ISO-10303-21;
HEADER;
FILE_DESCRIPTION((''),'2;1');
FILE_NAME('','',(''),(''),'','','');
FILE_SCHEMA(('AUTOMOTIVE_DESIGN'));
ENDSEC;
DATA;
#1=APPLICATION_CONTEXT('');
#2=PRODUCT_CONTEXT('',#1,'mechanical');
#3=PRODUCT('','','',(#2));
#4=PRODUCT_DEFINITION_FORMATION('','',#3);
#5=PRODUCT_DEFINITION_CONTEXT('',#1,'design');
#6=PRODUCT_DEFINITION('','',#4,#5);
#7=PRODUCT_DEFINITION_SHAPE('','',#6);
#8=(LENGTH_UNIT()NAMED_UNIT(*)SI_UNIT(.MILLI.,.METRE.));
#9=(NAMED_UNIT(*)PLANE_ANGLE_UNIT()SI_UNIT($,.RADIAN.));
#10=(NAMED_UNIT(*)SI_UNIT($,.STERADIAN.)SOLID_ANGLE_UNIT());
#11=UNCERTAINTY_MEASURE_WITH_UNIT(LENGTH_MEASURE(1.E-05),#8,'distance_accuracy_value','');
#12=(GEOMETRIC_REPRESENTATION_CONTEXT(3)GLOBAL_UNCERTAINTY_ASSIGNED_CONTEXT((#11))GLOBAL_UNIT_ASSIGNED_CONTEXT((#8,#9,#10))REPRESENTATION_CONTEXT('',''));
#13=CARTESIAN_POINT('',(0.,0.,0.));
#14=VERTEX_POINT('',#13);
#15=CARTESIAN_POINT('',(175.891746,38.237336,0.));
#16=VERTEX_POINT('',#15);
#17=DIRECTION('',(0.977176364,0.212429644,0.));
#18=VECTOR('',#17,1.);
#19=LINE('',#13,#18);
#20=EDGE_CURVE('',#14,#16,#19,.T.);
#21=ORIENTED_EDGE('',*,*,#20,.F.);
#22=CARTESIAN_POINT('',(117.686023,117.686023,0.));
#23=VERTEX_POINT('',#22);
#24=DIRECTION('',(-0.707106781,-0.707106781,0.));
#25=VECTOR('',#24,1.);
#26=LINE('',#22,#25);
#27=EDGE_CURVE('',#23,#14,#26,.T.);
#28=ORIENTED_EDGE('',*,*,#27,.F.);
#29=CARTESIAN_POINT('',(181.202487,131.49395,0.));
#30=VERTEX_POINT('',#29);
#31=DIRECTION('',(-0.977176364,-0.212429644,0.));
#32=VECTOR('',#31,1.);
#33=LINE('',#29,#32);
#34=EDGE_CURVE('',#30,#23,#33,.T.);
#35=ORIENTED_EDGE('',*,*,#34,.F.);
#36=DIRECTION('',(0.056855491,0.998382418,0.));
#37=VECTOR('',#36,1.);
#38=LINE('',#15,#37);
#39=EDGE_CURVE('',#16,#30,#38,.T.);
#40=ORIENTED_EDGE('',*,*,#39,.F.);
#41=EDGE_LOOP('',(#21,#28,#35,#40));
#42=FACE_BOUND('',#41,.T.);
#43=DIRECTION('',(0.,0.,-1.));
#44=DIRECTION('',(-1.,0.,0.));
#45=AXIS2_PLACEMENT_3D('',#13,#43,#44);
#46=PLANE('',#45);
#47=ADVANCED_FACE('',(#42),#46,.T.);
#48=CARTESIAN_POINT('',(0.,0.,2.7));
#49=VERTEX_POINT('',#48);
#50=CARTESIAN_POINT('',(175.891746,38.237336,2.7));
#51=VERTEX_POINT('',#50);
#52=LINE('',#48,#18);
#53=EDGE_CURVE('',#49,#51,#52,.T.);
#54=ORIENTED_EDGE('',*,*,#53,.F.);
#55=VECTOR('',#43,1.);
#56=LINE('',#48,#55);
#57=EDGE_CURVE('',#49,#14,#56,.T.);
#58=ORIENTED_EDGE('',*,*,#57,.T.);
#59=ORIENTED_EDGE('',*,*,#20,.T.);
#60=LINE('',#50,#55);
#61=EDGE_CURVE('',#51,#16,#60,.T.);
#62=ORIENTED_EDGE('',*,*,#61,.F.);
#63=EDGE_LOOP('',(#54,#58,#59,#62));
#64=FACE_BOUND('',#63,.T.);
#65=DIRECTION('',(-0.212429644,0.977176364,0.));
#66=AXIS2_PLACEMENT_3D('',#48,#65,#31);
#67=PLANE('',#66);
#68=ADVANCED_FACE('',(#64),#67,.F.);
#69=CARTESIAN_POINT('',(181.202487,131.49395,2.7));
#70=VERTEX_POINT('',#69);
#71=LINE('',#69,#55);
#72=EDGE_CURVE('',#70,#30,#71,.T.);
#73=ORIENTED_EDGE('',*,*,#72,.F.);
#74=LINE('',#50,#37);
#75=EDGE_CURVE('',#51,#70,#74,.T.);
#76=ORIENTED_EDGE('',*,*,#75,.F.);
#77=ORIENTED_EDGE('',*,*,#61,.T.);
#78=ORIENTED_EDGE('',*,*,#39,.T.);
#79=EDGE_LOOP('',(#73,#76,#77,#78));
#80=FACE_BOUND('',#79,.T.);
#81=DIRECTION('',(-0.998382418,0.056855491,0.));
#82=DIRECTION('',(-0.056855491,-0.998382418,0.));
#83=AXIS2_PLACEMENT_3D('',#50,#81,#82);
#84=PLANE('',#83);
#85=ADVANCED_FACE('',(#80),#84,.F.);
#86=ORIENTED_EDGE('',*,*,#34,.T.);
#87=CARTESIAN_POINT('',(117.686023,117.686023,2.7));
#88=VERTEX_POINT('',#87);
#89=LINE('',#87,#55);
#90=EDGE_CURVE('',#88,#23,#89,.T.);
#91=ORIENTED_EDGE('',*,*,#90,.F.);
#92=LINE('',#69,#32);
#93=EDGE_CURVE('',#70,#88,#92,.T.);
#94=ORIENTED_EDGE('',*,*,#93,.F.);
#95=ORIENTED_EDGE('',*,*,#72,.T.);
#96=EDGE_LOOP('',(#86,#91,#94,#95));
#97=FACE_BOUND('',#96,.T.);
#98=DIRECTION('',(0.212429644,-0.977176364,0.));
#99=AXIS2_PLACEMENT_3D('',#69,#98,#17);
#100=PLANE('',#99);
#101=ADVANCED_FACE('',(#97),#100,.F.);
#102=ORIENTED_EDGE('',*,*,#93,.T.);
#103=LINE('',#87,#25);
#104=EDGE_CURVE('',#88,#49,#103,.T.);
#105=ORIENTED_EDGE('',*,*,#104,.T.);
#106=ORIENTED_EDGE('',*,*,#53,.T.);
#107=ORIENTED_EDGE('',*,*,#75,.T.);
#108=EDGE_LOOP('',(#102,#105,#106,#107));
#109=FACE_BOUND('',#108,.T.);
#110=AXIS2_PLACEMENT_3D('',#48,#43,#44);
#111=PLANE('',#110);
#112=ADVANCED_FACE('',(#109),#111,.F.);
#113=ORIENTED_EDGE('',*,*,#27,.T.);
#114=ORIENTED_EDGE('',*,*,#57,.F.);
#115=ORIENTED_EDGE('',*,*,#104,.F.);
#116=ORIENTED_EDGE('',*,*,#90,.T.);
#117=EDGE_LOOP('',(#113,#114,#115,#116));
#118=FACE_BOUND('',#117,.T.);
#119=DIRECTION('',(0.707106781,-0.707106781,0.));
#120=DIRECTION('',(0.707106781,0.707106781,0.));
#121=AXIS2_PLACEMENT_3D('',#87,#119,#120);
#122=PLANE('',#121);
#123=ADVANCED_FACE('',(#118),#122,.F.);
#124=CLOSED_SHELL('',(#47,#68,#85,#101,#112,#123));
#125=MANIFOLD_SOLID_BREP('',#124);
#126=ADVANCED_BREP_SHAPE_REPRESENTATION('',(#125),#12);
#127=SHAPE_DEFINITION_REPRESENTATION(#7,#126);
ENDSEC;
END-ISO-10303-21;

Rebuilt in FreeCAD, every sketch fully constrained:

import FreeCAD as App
import Part
import Sketcher
Q = App.Units.Quantity

doc = App.newDocument("Part")
params = doc.addObject("Spreadsheet::Sheet", "Params")
for row, (alias, value) in enumerate([
    ("sketch1_length", "180 mm"),
    ("sketch1_length2", "65 mm"),
    ("pad1_length", "2.7 mm"),
], start=1):
    params.set(f"A{row}", alias)
    params.set(f"B{row}", "=" + value)
    params.setAlias(f"B{row}", alias)

body = doc.addObject("PartDesign::Body", "Body")

# Sketch on XY plane
sketch1 = body.newObject("Sketcher::SketchObject", "Sketch")
sketch1.AttachmentSupport = (doc.getObject("XY_Plane"), [""])
sketch1.MapMode = "FlatFace"
sketch1.addGeometry(Part.LineSegment(App.Vector(0, 0, 0), App.Vector(176, 38, 0)), False)
sketch1.addGeometry(Part.LineSegment(App.Vector(176, 38, 0), App.Vector(181, 131, 0)), False)
sketch1.addGeometry(Part.LineSegment(App.Vector(181, 131, 0), App.Vector(118, 118, 0)), False)
sketch1.addGeometry(Part.LineSegment(App.Vector(118, 118, 0), App.Vector(0, 0, 0)), False)
sketch1.addConstraint(Sketcher.Constraint("Coincident", 0, 2, 1, 1))
sketch1.addConstraint(Sketcher.Constraint("Coincident", 1, 2, 2, 1))
sketch1.addConstraint(Sketcher.Constraint("Coincident", 2, 2, 3, 1))
sketch1.addConstraint(Sketcher.Constraint("Coincident", 3, 2, 0, 1))
sketch1.addConstraint(Sketcher.Constraint("Coincident", 3, 2, -1, 1))
sketch1.addConstraint(Sketcher.Constraint("Parallel", 0, 2))
sketch1.addConstraint(Sketcher.Constraint("Angle", 3, Q("-135 deg")))
sketch1.addConstraint(Sketcher.Constraint("Distance", 0, Q("180 mm")))
sketch1.addConstraint(Sketcher.Constraint("Distance", 2, Q("65 mm")))
sketch1.addConstraint(Sketcher.Constraint("Distance", 1, Q("93.407708 mm")))
sketch1.addConstraint(Sketcher.Constraint("Distance", 3, Q("166.43317 mm")))
sketch1.setExpression("Constraints[7]", "Params.sketch1_length")
sketch1.setExpression("Constraints[8]", "Params.sketch1_length2")
pad1 = body.newObject("PartDesign::Pad", "Pad")
pad1.Profile = sketch1
pad1.setExpression("Length", "Params.pad1_length")

doc.recompute()
